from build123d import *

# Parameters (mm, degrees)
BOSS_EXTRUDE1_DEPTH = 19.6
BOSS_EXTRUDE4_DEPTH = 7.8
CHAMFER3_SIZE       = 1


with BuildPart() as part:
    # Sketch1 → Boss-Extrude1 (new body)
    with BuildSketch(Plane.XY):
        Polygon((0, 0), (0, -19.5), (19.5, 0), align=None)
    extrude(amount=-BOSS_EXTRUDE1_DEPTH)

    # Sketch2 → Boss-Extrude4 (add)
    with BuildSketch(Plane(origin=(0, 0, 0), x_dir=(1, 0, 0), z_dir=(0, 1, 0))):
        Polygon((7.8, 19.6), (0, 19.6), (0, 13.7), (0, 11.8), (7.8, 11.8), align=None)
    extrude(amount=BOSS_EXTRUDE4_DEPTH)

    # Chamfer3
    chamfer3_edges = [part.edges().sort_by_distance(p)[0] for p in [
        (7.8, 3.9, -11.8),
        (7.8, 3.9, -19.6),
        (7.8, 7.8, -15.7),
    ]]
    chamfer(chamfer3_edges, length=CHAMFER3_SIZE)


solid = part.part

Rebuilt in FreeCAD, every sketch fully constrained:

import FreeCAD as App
import Part
import Sketcher

V = App.Vector


def edges_at(feature, points):
    """Names of the edges that pass closest to the given points."""
    edges = feature.Shape.Edges
    near = lambda p: min(range(len(edges)), key=lambda i: edges[i].distToShape(Part.Vertex(*p))[0])
    return sorted({f"Edge{near(p) + 1}" for p in points})


def add_polygon(sketch, points):
    """Adds a closed chain of lines whose ends are joined by coincident constraints."""
    first, n = sketch.GeometryCount, len(points)
    for a, b in zip(points, points[1:] + points[:1]):
        sketch.addGeometry(Part.LineSegment(App.Vector(*a, 0), App.Vector(*b, 0)), False)
    for i in range(n):
        sketch.addConstraint(Sketcher.Constraint("Coincident", first + i, 2, first + (i + 1) % n, 1))

doc = App.newDocument("Part")
params = doc.addObject("Spreadsheet::Sheet", "Params")
for row, (alias, value) in enumerate([
    ("sketch1_width", "19.5 mm"),
    ("pad1_length", "19.6 mm"),
    ("sketch2_width", "7.8 mm"),
    ("pad2_length", "7.8 mm"),
    ("chamfer_size", "1 mm"),
], start=1):
    params.set(f"A{row}", alias)
    params.set(f"B{row}", "=" + value)
    params.setAlias(f"B{row}", alias)

body = doc.addObject("PartDesign::Body", "Body")

# Sketch on XY plane
sketch1 = body.newObject("Sketcher::SketchObject", "Sketch")
sketch1.AttachmentSupport = (doc.getObject("XY_Plane"), [""])
sketch1.MapMode = "FlatFace"
add_polygon(sketch1, [(0, 0), (0, -20), (20, 0)])  # lines 0-2
sketch1.addConstraint(Sketcher.Constraint("Vertical", 0))
sketch1.addConstraint(Sketcher.Constraint("Horizontal", 2))
sketch1.addConstraint(Sketcher.Constraint("Coincident", 2, 2, -1, 1))
sketch1.addConstraint(Sketcher.Constraint("Equal", 2, 0))
sketch1.addConstraint(Sketcher.Constraint("DistanceX", 2, 2, 2, 1, 19.5))
sketch1.setExpression("Constraints[7]", "Params.sketch1_width")
pad1 = body.newObject("PartDesign::Pad", "Pad")
pad1.Profile = sketch1
pad1.setExpression("Length", "Params.pad1_length")
pad1.Reversed = True

# Sketch on XZ plane
sketch2 = body.newObject("Sketcher::SketchObject", "Sketch001")
sketch2.AttachmentSupport = (doc.getObject("XZ_Plane"), [""])
sketch2.MapMode = "FlatFace"
add_polygon(sketch2, [(8, -20), (0, -20), (0, -12), (8, -12)])  # lines 0-3
sketch2.addConstraint(Sketcher.Constraint("Horizontal", 0))
sketch2.addConstraint(Sketcher.Constraint("Vertical", 1))
sketch2.addConstraint(Sketcher.Constraint("Horizontal", 2))
sketch2.addConstraint(Sketcher.Constraint("Vertical", 3))
sketch2.addConstraint(Sketcher.Constraint("PointOnObject", 0, 2, -2))
sketch2.addConstraint(Sketcher.Constraint("Equal", 2, 1))
sketch2.addConstraint(Sketcher.Constraint("DistanceX", 0, 2, 0, 1, 7.8))
sketch2.addConstraint(Sketcher.Constraint("DistanceY", 0, 2, -1, 1, 19.6))
sketch2.setExpression("Constraints[10]", "Params.sketch2_width")
pad2 = body.newObject("PartDesign::Pad", "Pad001")
pad2.Profile = sketch2
pad2.setExpression("Length", "Params.pad2_length")
pad2.Reversed = True
doc.recompute()

chamfer = body.newObject("PartDesign::Chamfer", "Chamfer")
chamfer.Base = (pad2, edges_at(pad2, [(7.8, 3.9, -11.8), (7.8, 3.9, -19.6), (7.8, 7.8, -15.7)]))
chamfer.setExpression("Size", "Params.chamfer_size")

doc.recompute()
